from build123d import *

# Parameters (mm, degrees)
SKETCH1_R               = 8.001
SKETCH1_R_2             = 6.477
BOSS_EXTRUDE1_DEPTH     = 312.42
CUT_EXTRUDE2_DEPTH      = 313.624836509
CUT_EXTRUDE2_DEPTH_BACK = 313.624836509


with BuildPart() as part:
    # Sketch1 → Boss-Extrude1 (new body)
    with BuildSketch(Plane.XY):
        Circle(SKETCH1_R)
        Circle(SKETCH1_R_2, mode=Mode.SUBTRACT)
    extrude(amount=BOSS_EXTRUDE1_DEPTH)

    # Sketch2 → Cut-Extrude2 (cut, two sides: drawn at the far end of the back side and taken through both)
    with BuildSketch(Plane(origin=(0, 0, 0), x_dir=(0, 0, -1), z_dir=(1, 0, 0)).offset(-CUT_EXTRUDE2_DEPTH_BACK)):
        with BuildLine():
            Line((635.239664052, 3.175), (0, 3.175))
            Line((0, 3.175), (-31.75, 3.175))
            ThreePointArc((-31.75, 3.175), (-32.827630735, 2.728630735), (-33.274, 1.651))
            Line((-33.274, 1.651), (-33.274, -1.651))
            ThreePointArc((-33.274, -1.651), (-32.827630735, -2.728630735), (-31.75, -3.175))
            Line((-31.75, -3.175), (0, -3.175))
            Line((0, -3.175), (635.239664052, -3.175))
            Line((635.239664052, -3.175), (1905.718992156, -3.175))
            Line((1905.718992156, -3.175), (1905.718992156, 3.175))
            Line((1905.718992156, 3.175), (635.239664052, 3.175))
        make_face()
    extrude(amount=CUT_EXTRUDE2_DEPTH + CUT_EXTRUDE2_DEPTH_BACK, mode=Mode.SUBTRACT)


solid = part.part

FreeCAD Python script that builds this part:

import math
import FreeCAD as App
import Part
import Sketcher
Q = App.Units.Quantity

doc = App.newDocument("Part")
body = doc.addObject("PartDesign::Body", "Body")

sketch1 = body.newObject("Sketcher::SketchObject", "Sketch")
sketch1.AttachmentSupport = (doc.getObject("XY_Plane"), [""])
sketch1.MapMode = "FlatFace"
sketch1.addGeometry(Part.Circle(App.Vector(0, 0, 0), App.Vector(0, 0, 1), 8), False)
sketch1.addGeometry(Part.Circle(App.Vector(0, 0, 0), App.Vector(0, 0, 1), 6), False)
sketch1.addConstraint(Sketcher.Constraint("Coincident", 0, 3, -1, 1))
sketch1.addConstraint(Sketcher.Constraint("Coincident", 1, 3, -1, 1))
sketch1.addConstraint(Sketcher.Constraint("Diameter", 0, Q("0.63 in")))
sketch1.addConstraint(Sketcher.Constraint("Diameter", 1, Q("0.51 in")))
pad1 = body.newObject("PartDesign::Pad", "Pad")
pad1.Profile = sketch1
pad1.Length = Q("12.3 in")

sketch2 = body.newObject("Sketcher::SketchObject", "Sketch001")
sketch2.AttachmentSupport = (doc.getObject("YZ_Plane"), [""])
sketch2.MapMode = "FlatFace"
sketch2.addGeometry(Part.ArcOfCircle(Part.Circle(App.Vector(1.7, 31.8, 0), App.Vector(0, 0, 1), 1.5), math.radians(0), math.radians(90)), False)
sketch2.addGeometry(Part.LineSegment(App.Vector(1.7, 33.3, 0), App.Vector(-1.7, 33.3, 0)), False)
sketch2.addGeometry(Part.ArcOfCircle(Part.Circle(App.Vector(-1.7, 31.8, 0), App.Vector(0, 0, 1), 1.5), math.radians(90), math.radians(180)), False)
sketch2.addGeometry(Part.LineSegment(App.Vector(-3.2, 31.8, 0), App.Vector(-3.2, -1905.7, 0)), False)
sketch2.addGeometry(Part.LineSegment(App.Vector(-3.2, -1905.7, 0), App.Vector(3.2, -1905.7, 0)), False)
sketch2.addGeometry(Part.LineSegment(App.Vector(3.2, -1905.7, 0), App.Vector(3.2, 31.8, 0)), False)
sketch2.addConstraint(Sketcher.Constraint("Tangent", 0, 2, 1, 1))
sketch2.addConstraint(Sketcher.Constraint("Tangent", 1, 2, 2, 1))
sketch2.addConstraint(Sketcher.Constraint("Tangent", 2, 2, 3, 1))
sketch2.addConstraint(Sketcher.Constraint("Coincident", 3, 2, 4, 1))
sketch2.addConstraint(Sketcher.Constraint("Coincident", 4, 2, 5, 1))
sketch2.addConstraint(Sketcher.Constraint("Tangent", 5, 2, 0, 1))
sketch2.addConstraint(Sketcher.Constraint("Horizontal", 1))
sketch2.addConstraint(Sketcher.Constraint("Vertical", 3))
sketch2.addConstraint(Sketcher.Constraint("Horizontal", 4))
sketch2.addConstraint(Sketcher.Constraint("Vertical", 5))
sketch2.addConstraint(Sketcher.Constraint("Equal", 0, 2))
sketch2.addConstraint(Sketcher.Constraint("Radius", 0, Q("0.06 in")))
sketch2.addConstraint(Sketcher.Constraint("DistanceX", 1, 2, 1, 1, Q("0.13 in")))
sketch2.addConstraint(Sketcher.Constraint("DistanceY", -1, 1, 0, 3, Q("1.25 in")))
sketch2.addConstraint(Sketcher.Constraint("DistanceX", -1, 1, 0, 3, Q("0.065 in")))
sketch2.addConstraint(Sketcher.Constraint("DistanceY", 3, 2, 3, 1, Q("1937.468992 mm")))
pocket1 = body.newObject("PartDesign::Pocket", "Pocket")
pocket1.Profile = sketch2
pocket1.Type = "ThroughAll"
pocket1.Midplane = True

doc.recompute()
